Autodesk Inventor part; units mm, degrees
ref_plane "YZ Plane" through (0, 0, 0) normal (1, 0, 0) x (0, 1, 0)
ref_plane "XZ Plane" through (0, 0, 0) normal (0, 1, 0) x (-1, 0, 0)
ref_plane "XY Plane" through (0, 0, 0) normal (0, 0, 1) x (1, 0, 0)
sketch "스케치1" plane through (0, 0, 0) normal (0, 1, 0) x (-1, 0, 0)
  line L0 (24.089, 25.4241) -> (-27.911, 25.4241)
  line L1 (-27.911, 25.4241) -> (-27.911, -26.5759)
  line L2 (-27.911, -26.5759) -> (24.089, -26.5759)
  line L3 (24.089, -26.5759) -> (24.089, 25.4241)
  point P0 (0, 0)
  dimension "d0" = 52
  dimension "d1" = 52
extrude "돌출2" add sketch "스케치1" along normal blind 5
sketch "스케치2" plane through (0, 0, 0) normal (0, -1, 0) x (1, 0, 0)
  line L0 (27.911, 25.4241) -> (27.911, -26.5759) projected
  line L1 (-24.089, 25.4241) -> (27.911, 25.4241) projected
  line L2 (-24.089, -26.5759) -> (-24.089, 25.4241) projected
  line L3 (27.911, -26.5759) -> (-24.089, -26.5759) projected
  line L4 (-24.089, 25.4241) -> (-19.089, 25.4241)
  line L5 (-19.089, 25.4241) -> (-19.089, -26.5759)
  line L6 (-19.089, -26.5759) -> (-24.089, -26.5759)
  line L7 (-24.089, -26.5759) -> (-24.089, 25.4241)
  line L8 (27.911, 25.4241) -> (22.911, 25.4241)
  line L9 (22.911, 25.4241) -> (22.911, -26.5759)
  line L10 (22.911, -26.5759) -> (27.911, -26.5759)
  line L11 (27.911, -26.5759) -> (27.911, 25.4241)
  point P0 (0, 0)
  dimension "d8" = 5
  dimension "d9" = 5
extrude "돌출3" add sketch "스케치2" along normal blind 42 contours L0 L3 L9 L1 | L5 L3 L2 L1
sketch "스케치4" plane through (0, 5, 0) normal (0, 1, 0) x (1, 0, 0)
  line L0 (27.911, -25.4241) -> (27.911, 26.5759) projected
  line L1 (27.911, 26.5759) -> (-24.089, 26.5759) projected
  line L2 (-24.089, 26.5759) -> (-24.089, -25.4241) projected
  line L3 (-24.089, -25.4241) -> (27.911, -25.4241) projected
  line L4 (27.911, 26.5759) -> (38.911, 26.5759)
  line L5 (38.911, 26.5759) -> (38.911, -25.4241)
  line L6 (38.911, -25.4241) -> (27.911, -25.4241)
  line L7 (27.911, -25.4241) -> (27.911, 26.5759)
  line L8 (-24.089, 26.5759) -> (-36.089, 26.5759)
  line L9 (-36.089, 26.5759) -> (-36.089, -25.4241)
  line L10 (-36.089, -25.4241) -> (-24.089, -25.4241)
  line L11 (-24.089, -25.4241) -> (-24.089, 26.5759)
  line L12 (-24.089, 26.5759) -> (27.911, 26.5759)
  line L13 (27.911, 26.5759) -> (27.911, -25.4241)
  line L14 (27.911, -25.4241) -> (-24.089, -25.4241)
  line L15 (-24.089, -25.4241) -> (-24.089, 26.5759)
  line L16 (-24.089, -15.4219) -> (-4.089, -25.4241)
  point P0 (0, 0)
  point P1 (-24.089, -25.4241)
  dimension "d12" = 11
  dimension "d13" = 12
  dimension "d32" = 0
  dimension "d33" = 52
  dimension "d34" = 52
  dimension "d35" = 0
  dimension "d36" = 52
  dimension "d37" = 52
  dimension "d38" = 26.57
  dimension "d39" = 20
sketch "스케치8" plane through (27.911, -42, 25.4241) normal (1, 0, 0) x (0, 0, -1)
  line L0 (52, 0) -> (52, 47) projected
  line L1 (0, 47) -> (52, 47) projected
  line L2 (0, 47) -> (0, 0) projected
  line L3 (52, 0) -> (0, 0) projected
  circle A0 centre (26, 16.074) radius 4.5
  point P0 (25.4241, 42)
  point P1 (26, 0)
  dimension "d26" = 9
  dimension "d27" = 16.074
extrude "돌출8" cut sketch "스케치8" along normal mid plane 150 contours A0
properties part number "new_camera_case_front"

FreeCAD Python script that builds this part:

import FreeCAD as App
import Part
import Sketcher
from FreeCAD import Vector
Q = App.Units.Quantity

doc = App.newDocument("Part")
body = doc.addObject("PartDesign::Body", "Body")

# Sketch on XZ plane
sketch1 = body.newObject("Sketcher::SketchObject", "Sketch")
sketch1.AttachmentSupport = (doc.getObject("XZ_Plane"), [""])
sketch1.MapMode = "FlatFace"
sketch1.addGeometry([
    Part.LineSegment(Vector(-24, -27, 0), Vector(-24, 25, 0)),
    Part.LineSegment(Vector(-24, 25, 0), Vector(28, 25, 0)),
    Part.LineSegment(Vector(28, 25, 0), Vector(28, -27, 0)),
    Part.LineSegment(Vector(28, -27, 0), Vector(-24, -27, 0)),
], False)
sketch1.addConstraint([
    Sketcher.Constraint("Coincident", 0, 2, 1, 1),
    Sketcher.Constraint("Coincident", 1, 2, 2, 1),
    Sketcher.Constraint("Coincident", 2, 2, 3, 1),
    Sketcher.Constraint("Coincident", 3, 2, 0, 1),
    Sketcher.Constraint("Vertical", 0),
    Sketcher.Constraint("Horizontal", 1),
    Sketcher.Constraint("Vertical", 2),
    Sketcher.Constraint("Horizontal", 3),
    Sketcher.Constraint("Equal", 3, 0),
    Sketcher.Constraint("DistanceX", 1, 1, 1, 2, Q("52 mm")),
    Sketcher.Constraint("DistanceX", 0, 2, -1, 1, Q("24.089 mm")),
    Sketcher.Constraint("DistanceY", -1, 1, 0, 2, Q("25.424 mm")),
])
pad1 = body.newObject("PartDesign::Pad", "Pad")
pad1.Profile = sketch1
pad1.Length = 5
pad1.Reversed = True

# Sketch on XZ plane
sketch2 = body.newObject("Sketcher::SketchObject", "Sketch001")
sketch2.AttachmentSupport = (doc.getObject("XZ_Plane"), [""])
sketch2.MapMode = "FlatFace"
sketch2.addGeometry([
    Part.LineSegment(Vector(28, -27, 0), Vector(28, 25, 0)),  # 0
    Part.LineSegment(Vector(28, 25, 0), Vector(23, 25, 0)),  # 1
    Part.LineSegment(Vector(23, 25, 0), Vector(23, -27, 0)),  # 2
    Part.LineSegment(Vector(23, -27, 0), Vector(28, -27, 0)),  # 3
    Part.LineSegment(Vector(-19, -27, 0), Vector(-19, 25, 0)),  # 4
    Part.LineSegment(Vector(-19, 25, 0), Vector(-24, 25, 0)),  # 5
    Part.LineSegment(Vector(-24, 25, 0), Vector(-24, -27, 0)),  # 6
    Part.LineSegment(Vector(-24, -27, 0), Vector(-19, -27, 0)),  # 7
], False)
sketch2.addConstraint([
    Sketcher.Constraint("Coincident", 0, 2, 1, 1),
    Sketcher.Constraint("Coincident", 1, 2, 2, 1),
    Sketcher.Constraint("Coincident", 2, 2, 3, 1),
    Sketcher.Constraint("Coincident", 3, 2, 0, 1),
    Sketcher.Constraint("Coincident", 4, 2, 5, 1),
    Sketcher.Constraint("Coincident", 5, 2, 6, 1),
    Sketcher.Constraint("Coincident", 6, 2, 7, 1),
    Sketcher.Constraint("Coincident", 7, 2, 4, 1),
    Sketcher.Constraint("Vertical", 0),
    Sketcher.Constraint("Horizontal", 1),
    Sketcher.Constraint("Vertical", 2),
    Sketcher.Constraint("Horizontal", 3),
    Sketcher.Constraint("Vertical", 4),
    Sketcher.Constraint("Horizontal", 5),
    Sketcher.Constraint("Vertical", 6),
    Sketcher.Constraint("Horizontal", 7),
    Sketcher.Constraint("Horizontal", 1, 2, 4, 2),
    Sketcher.Constraint("Horizontal", 3, 2, 6, 2),
    Sketcher.Constraint("Equal", 3, 5),
    Sketcher.Constraint("DistanceX", 1, 2, 1, 1, Q("5 mm")),
    Sketcher.Constraint("DistanceY", 0, 1, 0, 2, Q("52 mm")),
    Sketcher.Constraint("DistanceX", 4, 2, 1, 2, Q("42 mm")),
    Sketcher.Constraint("DistanceX", -1, 1, 0, 2, Q("27.911 mm")),
    Sketcher.Constraint("DistanceY", -1, 1, 0, 2, Q("25.424 mm")),
])
pad2 = body.newObject("PartDesign::Pad", "Pad001")
pad2.Profile = sketch2
pad2.Length = 42

# Sketch on YZ plane
sketch3 = body.newObject("Sketcher::SketchObject", "Sketch002")
sketch3.AttachmentSupport = (doc.getObject("YZ_Plane"), [""])
sketch3.MapMode = "FlatFace"
sketch3.AttachmentOffset = App.Placement(Vector(0, 0, 27.911), App.Rotation())
sketch3.addGeometry(Part.Circle(Vector(-25.9, -0.6, 0), Vector(0, 0, 1), 4.5), False)
sketch3.addConstraint([
    Sketcher.Constraint("Diameter", 0, Q("9 mm")),
    Sketcher.Constraint("DistanceX", 0, 3, -1, 1, Q("25.926 mm")),
    Sketcher.Constraint("DistanceY", 0, 3, -1, 1, Q("0.576 mm")),
])
pocket1 = body.newObject("PartDesign::Pocket", "Pocket")
pocket1.Profile = sketch3
pocket1.Length = 150
pocket1.Midplane = True

doc.recompute()
